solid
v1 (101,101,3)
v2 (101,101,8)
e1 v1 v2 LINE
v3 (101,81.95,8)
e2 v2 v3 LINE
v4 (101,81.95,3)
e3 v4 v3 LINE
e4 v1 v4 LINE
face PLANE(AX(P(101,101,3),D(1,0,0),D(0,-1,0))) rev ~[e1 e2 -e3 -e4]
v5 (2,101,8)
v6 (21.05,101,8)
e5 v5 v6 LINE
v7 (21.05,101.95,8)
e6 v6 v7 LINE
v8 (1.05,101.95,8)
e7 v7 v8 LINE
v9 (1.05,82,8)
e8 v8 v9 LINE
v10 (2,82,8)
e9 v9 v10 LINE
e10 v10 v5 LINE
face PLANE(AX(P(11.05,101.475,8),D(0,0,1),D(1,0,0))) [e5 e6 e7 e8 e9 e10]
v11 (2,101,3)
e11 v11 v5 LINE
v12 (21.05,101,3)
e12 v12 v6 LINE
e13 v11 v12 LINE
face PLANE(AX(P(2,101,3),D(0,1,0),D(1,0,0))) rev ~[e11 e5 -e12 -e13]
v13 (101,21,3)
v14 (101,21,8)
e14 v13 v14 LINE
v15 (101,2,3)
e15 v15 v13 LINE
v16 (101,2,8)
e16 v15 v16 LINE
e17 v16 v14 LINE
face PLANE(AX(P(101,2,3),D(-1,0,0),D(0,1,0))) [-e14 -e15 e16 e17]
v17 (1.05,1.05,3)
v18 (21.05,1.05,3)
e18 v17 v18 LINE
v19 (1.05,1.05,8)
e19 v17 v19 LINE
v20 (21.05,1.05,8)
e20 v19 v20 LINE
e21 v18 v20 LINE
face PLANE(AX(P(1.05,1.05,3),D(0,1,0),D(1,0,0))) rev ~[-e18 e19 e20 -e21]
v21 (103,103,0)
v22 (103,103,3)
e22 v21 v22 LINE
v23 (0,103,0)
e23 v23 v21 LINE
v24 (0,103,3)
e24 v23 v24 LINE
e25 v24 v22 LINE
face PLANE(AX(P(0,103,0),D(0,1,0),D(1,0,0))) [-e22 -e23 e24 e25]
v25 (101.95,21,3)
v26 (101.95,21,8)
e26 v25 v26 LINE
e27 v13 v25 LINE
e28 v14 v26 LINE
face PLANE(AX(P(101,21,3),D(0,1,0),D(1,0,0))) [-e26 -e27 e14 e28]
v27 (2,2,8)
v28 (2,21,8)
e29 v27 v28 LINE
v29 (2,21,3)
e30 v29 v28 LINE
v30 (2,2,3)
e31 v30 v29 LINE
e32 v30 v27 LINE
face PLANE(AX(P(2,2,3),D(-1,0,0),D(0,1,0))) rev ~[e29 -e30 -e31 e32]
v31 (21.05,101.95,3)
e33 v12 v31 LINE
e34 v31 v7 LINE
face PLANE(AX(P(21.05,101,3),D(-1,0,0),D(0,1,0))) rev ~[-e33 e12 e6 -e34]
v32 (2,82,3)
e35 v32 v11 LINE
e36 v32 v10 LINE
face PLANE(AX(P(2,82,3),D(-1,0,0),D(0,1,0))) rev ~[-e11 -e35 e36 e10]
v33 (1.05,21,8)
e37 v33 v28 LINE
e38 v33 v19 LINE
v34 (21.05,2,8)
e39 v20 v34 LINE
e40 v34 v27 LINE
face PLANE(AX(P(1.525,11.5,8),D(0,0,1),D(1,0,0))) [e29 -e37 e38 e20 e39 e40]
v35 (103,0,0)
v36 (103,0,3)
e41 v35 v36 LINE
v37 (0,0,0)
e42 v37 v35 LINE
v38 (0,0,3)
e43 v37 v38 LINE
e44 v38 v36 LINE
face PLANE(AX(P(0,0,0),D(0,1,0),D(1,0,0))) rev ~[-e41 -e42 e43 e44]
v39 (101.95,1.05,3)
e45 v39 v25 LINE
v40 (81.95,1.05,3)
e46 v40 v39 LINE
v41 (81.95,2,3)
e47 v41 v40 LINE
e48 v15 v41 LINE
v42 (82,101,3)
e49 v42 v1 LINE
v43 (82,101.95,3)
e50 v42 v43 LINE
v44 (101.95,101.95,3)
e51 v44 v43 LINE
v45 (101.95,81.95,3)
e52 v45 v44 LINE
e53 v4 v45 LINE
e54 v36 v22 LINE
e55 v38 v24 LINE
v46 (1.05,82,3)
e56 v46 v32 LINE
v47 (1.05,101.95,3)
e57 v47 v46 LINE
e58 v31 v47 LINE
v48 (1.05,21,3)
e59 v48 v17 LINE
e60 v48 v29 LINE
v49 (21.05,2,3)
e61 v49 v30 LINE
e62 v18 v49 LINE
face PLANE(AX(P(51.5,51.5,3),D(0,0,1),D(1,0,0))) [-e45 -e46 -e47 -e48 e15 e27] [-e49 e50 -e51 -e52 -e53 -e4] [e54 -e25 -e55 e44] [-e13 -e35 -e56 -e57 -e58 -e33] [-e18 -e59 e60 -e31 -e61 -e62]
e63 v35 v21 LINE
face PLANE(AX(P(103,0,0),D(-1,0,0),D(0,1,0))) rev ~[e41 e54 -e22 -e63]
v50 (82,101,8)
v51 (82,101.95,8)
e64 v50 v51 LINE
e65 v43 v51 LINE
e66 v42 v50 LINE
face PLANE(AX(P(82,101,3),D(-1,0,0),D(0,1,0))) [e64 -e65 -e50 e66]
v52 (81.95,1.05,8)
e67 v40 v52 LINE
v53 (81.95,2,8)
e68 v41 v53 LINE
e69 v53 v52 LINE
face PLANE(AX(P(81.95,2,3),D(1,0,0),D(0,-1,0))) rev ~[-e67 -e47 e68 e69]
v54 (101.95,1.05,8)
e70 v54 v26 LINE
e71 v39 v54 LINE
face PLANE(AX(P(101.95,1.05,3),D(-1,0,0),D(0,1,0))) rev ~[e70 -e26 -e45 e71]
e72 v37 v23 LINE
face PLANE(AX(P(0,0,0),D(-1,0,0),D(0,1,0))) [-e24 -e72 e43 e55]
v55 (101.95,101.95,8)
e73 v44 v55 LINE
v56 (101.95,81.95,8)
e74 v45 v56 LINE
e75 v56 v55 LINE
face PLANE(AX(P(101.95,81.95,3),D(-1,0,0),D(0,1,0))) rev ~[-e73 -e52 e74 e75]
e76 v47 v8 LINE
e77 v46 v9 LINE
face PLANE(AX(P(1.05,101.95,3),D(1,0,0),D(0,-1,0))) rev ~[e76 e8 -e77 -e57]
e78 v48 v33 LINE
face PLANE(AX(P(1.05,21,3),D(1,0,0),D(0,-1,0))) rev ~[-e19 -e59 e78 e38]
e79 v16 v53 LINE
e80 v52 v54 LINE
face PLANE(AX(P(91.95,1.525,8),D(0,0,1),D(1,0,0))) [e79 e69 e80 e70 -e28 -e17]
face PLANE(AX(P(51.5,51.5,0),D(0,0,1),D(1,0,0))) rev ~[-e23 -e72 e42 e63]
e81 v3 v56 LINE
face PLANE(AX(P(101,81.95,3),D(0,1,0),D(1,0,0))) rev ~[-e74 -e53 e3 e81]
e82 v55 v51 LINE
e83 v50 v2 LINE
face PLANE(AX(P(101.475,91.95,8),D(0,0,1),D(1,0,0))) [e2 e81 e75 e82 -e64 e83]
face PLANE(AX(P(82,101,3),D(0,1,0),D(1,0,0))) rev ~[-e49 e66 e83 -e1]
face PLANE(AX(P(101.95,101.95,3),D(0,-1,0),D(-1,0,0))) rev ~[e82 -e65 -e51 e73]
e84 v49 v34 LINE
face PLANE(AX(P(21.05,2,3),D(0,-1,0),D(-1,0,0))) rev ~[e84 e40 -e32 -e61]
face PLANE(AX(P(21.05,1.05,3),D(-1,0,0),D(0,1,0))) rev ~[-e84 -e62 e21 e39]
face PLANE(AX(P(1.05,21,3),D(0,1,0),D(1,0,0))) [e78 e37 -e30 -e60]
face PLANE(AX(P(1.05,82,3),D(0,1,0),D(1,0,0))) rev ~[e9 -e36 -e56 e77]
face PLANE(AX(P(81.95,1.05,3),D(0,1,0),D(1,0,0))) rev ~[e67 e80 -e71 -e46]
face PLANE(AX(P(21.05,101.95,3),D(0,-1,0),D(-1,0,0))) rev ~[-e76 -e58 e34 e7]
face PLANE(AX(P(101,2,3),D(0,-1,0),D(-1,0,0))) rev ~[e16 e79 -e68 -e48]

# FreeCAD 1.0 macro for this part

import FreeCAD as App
import Part
import Sketcher

V = App.Vector
Q = App.Units.Quantity

doc = App.newDocument("Part")
body = doc.addObject("PartDesign::Body", "Body")

sketch1 = body.newObject("Sketcher::SketchObject", "Sketch")
sketch1.AttachmentSupport = (doc.getObject("XY_Plane"), [""])
sketch1.MapMode = "FlatFace"
sketch1.addGeometry([
    Part.LineSegment(V(0, 103, 0), V(0, 0, 0)),
    Part.LineSegment(V(0, 0, 0), V(103, 0, 0)),
    Part.LineSegment(V(103, 0, 0), V(103, 103, 0)),
    Part.LineSegment(V(103, 103, 0), V(0, 103, 0)),
], False)
sketch1.addConstraint([
    Sketcher.Constraint("Coincident", 0, 2, 1, 1),
    Sketcher.Constraint("Coincident", 1, 2, 2, 1),
    Sketcher.Constraint("Coincident", 2, 2, 3, 1),
    Sketcher.Constraint("Coincident", 3, 2, 0, 1),
    Sketcher.Constraint("Vertical", 0),
    Sketcher.Constraint("Horizontal", 1),
    Sketcher.Constraint("Vertical", 2),
    Sketcher.Constraint("Horizontal", 3),
    Sketcher.Constraint("Coincident", 0, 2, -1, 1),
    Sketcher.Constraint("Equal", 3, 0),
    Sketcher.Constraint("DistanceX", 1, 1, 1, 2, Q("103 mm")),
])
pad1 = body.newObject("PartDesign::Pad", "Pad")
pad1.Profile = sketch1
pad1.Length = 3

sketch2 = body.newObject("Sketcher::SketchObject", "Sketch001")
sketch2.AttachmentSupport = (doc.getObject("XY_Plane"), [""])
sketch2.MapMode = "FlatFace"
sketch2.AttachmentOffset = App.Placement(V(0, 0, 3), App.Rotation())
sketch2.addGeometry([
    Part.LineSegment(V(1.05, 21, 0), V(1.05, 1.05, 0)),
    Part.LineSegment(V(1.05, 1.05, 0), V(21.05, 1.05, 0)),
    Part.LineSegment(V(21.05, 1.05, 0), V(21.05, 2, 0)),
    Part.LineSegment(V(21.05, 2, 0), V(2, 2, 0)),
    Part.LineSegment(V(2, 2, 0), V(2, 21, 0)),
    Part.LineSegment(V(2, 21, 0), V(1.05, 21, 0)),
    Part.LineSegment(V(81.95, 2, 0), V(81.95, 1.05, 0)),
    Part.LineSegment(V(81.95, 1.05, 0), V(101.95, 1.05, 0)),
    Part.LineSegment(V(101.95, 1.05, 0), V(101.95, 21, 0)),
    Part.LineSegment(V(101.95, 21, 0), V(101, 21, 0)),
    Part.LineSegment(V(101, 21, 0), V(101, 2, 0)),
    Part.LineSegment(V(101, 2, 0), V(81.95, 2, 0)),
    Part.LineSegment(V(101.95, 81.95, 0), V(101.95, 101.95, 0)),
    Part.LineSegment(V(101.95, 101.95, 0), V(82, 101.95, 0)),
    Part.LineSegment(V(82, 101.95, 0), V(82, 101, 0)),
    Part.LineSegment(V(82, 101, 0), V(101, 101, 0)),
    Part.LineSegment(V(101, 101, 0), V(101, 81.95, 0)),
    Part.LineSegment(V(101, 81.95, 0), V(101.95, 81.95, 0)),
    Part.LineSegment(V(21.05, 101.95, 0), V(1.05, 101.95, 0)),
    Part.LineSegment(V(1.05, 101.95, 0), V(1.05, 82, 0)),
    Part.LineSegment(V(1.05, 82, 0), V(2, 82, 0)),
    Part.LineSegment(V(2, 82, 0), V(2, 101, 0)),
    Part.LineSegment(V(2, 101, 0), V(21.05, 101, 0)),
    Part.LineSegment(V(21.05, 101, 0), V(21.05, 101.95, 0)),
], False)
sketch2.addConstraint([
    Sketcher.Constraint("Coincident", 0, 2, 1, 1),
    Sketcher.Constraint("Coincident", 1, 2, 2, 1),
    Sketcher.Constraint("Coincident", 2, 2, 3, 1),
    Sketcher.Constraint("Coincident", 3, 2, 4, 1),
    Sketcher.Constraint("Coincident", 4, 2, 5, 1),
    Sketcher.Constraint("Coincident", 5, 2, 0, 1),
    Sketcher.Constraint("Coincident", 6, 2, 7, 1),
    Sketcher.Constraint("Coincident", 7, 2, 8, 1),
    Sketcher.Constraint("Coincident", 8, 2, 9, 1),
    Sketcher.Constraint("Coincident", 9, 2, 10, 1),
    Sketcher.Constraint("Coincident", 10, 2, 11, 1),
    Sketcher.Constraint("Coincident", 11, 2, 6, 1),
    Sketcher.Constraint("Coincident", 12, 2, 13, 1),
    Sketcher.Constraint("Coincident", 13, 2, 14, 1),
    Sketcher.Constraint("Coincident", 14, 2, 15, 1),
    Sketcher.Constraint("Coincident", 15, 2, 16, 1),
    Sketcher.Constraint("Coincident", 16, 2, 17, 1),
    Sketcher.Constraint("Coincident", 17, 2, 12, 1),
    Sketcher.Constraint("Coincident", 18, 2, 19, 1),
    Sketcher.Constraint("Coincident", 19, 2, 20, 1),
    Sketcher.Constraint("Coincident", 20, 2, 21, 1),
    Sketcher.Constraint("Coincident", 21, 2, 22, 1),
    Sketcher.Constraint("Coincident", 22, 2, 23, 1),
    Sketcher.Constraint("Coincident", 23, 2, 18, 1),
    Sketcher.Constraint("Vertical", 0),
    Sketcher.Constraint("Horizontal", 1),
    Sketcher.Constraint("Vertical", 2),
    Sketcher.Constraint("Horizontal", 3),
    Sketcher.Constraint("Vertical", 4),
    Sketcher.Constraint("Horizontal", 5),
    Sketcher.Constraint("Vertical", 6),
    Sketcher.Constraint("Horizontal", 7),
    Sketcher.Constraint("Vertical", 8),
    Sketcher.Constraint("Horizontal", 9),
    Sketcher.Constraint("Vertical", 10),
    Sketcher.Constraint("Horizontal", 11),
    Sketcher.Constraint("Vertical", 12),
    Sketcher.Constraint("Horizontal", 13),
    Sketcher.Constraint("Vertical", 14),
    Sketcher.Constraint("Horizontal", 15),
    Sketcher.Constraint("Vertical", 16),
    Sketcher.Constraint("Horizontal", 17),
    Sketcher.Constraint("Horizontal", 18),
    Sketcher.Constraint("Vertical", 19),
    Sketcher.Constraint("Horizontal", 20),
    Sketcher.Constraint("Vertical", 21),
    Sketcher.Constraint("Horizontal", 22),
    Sketcher.Constraint("Vertical", 23),
    Sketcher.Constraint("Horizontal", 1, 2, 6, 2),
    Sketcher.Constraint("Horizontal", 5, 2, 8, 2),
    Sketcher.Constraint("Horizontal", 3, 2, 10, 2),
    Sketcher.Constraint("Horizontal", 13, 2, 18, 2),
    Sketcher.Constraint("Horizontal", 15, 2, 21, 2),
    Sketcher.Constraint("Vertical", 8, 2, 12, 2),
    Sketcher.Constraint("Vertical", 10, 2, 15, 2),
    Sketcher.Constraint("Vertical", 5, 2, 18, 2),
    Sketcher.Constraint("Vertical", 4, 2, 20, 2),
    Sketcher.Constraint("Vertical", 2, 2, 22, 2),
    Sketcher.Constraint("Equal", 1, 7),
    Sketcher.Constraint("Equal", 5, 9),
    Sketcher.Constraint("Equal", 13, 0),
    Sketcher.Constraint("Equal", 20, 2),
    Sketcher.Constraint("Equal", 18, 12),
    Sketcher.Constraint("Equal", 6, 14),
    Sketcher.Constraint("Equal", 8, 19),
    Sketcher.Constraint("DistanceX", 1, 1, 1, 2, Q("20 mm")),
    Sketcher.Constraint("DistanceX", 15, 1, 15, 2, Q("19 mm")),
    Sketcher.Constraint("DistanceY", -1, 1, 2, 2, Q("2 mm")),
    Sketcher.Constraint("DistanceX", -1, 1, 3, 2, Q("2 mm")),
    Sketcher.Constraint("DistanceX", -1, 1, 9, 2, Q("101 mm")),
    Sketcher.Constraint("DistanceY", -1, 1, 14, 2, Q("101 mm")),
    Sketcher.Constraint("DistanceX", 3, 2, 3, 1, Q("19.05 mm")),
])
pad2 = body.newObject("PartDesign::Pad", "Pad001")
pad2.Profile = sketch2
pad2.Length = 5

doc.recompute()
